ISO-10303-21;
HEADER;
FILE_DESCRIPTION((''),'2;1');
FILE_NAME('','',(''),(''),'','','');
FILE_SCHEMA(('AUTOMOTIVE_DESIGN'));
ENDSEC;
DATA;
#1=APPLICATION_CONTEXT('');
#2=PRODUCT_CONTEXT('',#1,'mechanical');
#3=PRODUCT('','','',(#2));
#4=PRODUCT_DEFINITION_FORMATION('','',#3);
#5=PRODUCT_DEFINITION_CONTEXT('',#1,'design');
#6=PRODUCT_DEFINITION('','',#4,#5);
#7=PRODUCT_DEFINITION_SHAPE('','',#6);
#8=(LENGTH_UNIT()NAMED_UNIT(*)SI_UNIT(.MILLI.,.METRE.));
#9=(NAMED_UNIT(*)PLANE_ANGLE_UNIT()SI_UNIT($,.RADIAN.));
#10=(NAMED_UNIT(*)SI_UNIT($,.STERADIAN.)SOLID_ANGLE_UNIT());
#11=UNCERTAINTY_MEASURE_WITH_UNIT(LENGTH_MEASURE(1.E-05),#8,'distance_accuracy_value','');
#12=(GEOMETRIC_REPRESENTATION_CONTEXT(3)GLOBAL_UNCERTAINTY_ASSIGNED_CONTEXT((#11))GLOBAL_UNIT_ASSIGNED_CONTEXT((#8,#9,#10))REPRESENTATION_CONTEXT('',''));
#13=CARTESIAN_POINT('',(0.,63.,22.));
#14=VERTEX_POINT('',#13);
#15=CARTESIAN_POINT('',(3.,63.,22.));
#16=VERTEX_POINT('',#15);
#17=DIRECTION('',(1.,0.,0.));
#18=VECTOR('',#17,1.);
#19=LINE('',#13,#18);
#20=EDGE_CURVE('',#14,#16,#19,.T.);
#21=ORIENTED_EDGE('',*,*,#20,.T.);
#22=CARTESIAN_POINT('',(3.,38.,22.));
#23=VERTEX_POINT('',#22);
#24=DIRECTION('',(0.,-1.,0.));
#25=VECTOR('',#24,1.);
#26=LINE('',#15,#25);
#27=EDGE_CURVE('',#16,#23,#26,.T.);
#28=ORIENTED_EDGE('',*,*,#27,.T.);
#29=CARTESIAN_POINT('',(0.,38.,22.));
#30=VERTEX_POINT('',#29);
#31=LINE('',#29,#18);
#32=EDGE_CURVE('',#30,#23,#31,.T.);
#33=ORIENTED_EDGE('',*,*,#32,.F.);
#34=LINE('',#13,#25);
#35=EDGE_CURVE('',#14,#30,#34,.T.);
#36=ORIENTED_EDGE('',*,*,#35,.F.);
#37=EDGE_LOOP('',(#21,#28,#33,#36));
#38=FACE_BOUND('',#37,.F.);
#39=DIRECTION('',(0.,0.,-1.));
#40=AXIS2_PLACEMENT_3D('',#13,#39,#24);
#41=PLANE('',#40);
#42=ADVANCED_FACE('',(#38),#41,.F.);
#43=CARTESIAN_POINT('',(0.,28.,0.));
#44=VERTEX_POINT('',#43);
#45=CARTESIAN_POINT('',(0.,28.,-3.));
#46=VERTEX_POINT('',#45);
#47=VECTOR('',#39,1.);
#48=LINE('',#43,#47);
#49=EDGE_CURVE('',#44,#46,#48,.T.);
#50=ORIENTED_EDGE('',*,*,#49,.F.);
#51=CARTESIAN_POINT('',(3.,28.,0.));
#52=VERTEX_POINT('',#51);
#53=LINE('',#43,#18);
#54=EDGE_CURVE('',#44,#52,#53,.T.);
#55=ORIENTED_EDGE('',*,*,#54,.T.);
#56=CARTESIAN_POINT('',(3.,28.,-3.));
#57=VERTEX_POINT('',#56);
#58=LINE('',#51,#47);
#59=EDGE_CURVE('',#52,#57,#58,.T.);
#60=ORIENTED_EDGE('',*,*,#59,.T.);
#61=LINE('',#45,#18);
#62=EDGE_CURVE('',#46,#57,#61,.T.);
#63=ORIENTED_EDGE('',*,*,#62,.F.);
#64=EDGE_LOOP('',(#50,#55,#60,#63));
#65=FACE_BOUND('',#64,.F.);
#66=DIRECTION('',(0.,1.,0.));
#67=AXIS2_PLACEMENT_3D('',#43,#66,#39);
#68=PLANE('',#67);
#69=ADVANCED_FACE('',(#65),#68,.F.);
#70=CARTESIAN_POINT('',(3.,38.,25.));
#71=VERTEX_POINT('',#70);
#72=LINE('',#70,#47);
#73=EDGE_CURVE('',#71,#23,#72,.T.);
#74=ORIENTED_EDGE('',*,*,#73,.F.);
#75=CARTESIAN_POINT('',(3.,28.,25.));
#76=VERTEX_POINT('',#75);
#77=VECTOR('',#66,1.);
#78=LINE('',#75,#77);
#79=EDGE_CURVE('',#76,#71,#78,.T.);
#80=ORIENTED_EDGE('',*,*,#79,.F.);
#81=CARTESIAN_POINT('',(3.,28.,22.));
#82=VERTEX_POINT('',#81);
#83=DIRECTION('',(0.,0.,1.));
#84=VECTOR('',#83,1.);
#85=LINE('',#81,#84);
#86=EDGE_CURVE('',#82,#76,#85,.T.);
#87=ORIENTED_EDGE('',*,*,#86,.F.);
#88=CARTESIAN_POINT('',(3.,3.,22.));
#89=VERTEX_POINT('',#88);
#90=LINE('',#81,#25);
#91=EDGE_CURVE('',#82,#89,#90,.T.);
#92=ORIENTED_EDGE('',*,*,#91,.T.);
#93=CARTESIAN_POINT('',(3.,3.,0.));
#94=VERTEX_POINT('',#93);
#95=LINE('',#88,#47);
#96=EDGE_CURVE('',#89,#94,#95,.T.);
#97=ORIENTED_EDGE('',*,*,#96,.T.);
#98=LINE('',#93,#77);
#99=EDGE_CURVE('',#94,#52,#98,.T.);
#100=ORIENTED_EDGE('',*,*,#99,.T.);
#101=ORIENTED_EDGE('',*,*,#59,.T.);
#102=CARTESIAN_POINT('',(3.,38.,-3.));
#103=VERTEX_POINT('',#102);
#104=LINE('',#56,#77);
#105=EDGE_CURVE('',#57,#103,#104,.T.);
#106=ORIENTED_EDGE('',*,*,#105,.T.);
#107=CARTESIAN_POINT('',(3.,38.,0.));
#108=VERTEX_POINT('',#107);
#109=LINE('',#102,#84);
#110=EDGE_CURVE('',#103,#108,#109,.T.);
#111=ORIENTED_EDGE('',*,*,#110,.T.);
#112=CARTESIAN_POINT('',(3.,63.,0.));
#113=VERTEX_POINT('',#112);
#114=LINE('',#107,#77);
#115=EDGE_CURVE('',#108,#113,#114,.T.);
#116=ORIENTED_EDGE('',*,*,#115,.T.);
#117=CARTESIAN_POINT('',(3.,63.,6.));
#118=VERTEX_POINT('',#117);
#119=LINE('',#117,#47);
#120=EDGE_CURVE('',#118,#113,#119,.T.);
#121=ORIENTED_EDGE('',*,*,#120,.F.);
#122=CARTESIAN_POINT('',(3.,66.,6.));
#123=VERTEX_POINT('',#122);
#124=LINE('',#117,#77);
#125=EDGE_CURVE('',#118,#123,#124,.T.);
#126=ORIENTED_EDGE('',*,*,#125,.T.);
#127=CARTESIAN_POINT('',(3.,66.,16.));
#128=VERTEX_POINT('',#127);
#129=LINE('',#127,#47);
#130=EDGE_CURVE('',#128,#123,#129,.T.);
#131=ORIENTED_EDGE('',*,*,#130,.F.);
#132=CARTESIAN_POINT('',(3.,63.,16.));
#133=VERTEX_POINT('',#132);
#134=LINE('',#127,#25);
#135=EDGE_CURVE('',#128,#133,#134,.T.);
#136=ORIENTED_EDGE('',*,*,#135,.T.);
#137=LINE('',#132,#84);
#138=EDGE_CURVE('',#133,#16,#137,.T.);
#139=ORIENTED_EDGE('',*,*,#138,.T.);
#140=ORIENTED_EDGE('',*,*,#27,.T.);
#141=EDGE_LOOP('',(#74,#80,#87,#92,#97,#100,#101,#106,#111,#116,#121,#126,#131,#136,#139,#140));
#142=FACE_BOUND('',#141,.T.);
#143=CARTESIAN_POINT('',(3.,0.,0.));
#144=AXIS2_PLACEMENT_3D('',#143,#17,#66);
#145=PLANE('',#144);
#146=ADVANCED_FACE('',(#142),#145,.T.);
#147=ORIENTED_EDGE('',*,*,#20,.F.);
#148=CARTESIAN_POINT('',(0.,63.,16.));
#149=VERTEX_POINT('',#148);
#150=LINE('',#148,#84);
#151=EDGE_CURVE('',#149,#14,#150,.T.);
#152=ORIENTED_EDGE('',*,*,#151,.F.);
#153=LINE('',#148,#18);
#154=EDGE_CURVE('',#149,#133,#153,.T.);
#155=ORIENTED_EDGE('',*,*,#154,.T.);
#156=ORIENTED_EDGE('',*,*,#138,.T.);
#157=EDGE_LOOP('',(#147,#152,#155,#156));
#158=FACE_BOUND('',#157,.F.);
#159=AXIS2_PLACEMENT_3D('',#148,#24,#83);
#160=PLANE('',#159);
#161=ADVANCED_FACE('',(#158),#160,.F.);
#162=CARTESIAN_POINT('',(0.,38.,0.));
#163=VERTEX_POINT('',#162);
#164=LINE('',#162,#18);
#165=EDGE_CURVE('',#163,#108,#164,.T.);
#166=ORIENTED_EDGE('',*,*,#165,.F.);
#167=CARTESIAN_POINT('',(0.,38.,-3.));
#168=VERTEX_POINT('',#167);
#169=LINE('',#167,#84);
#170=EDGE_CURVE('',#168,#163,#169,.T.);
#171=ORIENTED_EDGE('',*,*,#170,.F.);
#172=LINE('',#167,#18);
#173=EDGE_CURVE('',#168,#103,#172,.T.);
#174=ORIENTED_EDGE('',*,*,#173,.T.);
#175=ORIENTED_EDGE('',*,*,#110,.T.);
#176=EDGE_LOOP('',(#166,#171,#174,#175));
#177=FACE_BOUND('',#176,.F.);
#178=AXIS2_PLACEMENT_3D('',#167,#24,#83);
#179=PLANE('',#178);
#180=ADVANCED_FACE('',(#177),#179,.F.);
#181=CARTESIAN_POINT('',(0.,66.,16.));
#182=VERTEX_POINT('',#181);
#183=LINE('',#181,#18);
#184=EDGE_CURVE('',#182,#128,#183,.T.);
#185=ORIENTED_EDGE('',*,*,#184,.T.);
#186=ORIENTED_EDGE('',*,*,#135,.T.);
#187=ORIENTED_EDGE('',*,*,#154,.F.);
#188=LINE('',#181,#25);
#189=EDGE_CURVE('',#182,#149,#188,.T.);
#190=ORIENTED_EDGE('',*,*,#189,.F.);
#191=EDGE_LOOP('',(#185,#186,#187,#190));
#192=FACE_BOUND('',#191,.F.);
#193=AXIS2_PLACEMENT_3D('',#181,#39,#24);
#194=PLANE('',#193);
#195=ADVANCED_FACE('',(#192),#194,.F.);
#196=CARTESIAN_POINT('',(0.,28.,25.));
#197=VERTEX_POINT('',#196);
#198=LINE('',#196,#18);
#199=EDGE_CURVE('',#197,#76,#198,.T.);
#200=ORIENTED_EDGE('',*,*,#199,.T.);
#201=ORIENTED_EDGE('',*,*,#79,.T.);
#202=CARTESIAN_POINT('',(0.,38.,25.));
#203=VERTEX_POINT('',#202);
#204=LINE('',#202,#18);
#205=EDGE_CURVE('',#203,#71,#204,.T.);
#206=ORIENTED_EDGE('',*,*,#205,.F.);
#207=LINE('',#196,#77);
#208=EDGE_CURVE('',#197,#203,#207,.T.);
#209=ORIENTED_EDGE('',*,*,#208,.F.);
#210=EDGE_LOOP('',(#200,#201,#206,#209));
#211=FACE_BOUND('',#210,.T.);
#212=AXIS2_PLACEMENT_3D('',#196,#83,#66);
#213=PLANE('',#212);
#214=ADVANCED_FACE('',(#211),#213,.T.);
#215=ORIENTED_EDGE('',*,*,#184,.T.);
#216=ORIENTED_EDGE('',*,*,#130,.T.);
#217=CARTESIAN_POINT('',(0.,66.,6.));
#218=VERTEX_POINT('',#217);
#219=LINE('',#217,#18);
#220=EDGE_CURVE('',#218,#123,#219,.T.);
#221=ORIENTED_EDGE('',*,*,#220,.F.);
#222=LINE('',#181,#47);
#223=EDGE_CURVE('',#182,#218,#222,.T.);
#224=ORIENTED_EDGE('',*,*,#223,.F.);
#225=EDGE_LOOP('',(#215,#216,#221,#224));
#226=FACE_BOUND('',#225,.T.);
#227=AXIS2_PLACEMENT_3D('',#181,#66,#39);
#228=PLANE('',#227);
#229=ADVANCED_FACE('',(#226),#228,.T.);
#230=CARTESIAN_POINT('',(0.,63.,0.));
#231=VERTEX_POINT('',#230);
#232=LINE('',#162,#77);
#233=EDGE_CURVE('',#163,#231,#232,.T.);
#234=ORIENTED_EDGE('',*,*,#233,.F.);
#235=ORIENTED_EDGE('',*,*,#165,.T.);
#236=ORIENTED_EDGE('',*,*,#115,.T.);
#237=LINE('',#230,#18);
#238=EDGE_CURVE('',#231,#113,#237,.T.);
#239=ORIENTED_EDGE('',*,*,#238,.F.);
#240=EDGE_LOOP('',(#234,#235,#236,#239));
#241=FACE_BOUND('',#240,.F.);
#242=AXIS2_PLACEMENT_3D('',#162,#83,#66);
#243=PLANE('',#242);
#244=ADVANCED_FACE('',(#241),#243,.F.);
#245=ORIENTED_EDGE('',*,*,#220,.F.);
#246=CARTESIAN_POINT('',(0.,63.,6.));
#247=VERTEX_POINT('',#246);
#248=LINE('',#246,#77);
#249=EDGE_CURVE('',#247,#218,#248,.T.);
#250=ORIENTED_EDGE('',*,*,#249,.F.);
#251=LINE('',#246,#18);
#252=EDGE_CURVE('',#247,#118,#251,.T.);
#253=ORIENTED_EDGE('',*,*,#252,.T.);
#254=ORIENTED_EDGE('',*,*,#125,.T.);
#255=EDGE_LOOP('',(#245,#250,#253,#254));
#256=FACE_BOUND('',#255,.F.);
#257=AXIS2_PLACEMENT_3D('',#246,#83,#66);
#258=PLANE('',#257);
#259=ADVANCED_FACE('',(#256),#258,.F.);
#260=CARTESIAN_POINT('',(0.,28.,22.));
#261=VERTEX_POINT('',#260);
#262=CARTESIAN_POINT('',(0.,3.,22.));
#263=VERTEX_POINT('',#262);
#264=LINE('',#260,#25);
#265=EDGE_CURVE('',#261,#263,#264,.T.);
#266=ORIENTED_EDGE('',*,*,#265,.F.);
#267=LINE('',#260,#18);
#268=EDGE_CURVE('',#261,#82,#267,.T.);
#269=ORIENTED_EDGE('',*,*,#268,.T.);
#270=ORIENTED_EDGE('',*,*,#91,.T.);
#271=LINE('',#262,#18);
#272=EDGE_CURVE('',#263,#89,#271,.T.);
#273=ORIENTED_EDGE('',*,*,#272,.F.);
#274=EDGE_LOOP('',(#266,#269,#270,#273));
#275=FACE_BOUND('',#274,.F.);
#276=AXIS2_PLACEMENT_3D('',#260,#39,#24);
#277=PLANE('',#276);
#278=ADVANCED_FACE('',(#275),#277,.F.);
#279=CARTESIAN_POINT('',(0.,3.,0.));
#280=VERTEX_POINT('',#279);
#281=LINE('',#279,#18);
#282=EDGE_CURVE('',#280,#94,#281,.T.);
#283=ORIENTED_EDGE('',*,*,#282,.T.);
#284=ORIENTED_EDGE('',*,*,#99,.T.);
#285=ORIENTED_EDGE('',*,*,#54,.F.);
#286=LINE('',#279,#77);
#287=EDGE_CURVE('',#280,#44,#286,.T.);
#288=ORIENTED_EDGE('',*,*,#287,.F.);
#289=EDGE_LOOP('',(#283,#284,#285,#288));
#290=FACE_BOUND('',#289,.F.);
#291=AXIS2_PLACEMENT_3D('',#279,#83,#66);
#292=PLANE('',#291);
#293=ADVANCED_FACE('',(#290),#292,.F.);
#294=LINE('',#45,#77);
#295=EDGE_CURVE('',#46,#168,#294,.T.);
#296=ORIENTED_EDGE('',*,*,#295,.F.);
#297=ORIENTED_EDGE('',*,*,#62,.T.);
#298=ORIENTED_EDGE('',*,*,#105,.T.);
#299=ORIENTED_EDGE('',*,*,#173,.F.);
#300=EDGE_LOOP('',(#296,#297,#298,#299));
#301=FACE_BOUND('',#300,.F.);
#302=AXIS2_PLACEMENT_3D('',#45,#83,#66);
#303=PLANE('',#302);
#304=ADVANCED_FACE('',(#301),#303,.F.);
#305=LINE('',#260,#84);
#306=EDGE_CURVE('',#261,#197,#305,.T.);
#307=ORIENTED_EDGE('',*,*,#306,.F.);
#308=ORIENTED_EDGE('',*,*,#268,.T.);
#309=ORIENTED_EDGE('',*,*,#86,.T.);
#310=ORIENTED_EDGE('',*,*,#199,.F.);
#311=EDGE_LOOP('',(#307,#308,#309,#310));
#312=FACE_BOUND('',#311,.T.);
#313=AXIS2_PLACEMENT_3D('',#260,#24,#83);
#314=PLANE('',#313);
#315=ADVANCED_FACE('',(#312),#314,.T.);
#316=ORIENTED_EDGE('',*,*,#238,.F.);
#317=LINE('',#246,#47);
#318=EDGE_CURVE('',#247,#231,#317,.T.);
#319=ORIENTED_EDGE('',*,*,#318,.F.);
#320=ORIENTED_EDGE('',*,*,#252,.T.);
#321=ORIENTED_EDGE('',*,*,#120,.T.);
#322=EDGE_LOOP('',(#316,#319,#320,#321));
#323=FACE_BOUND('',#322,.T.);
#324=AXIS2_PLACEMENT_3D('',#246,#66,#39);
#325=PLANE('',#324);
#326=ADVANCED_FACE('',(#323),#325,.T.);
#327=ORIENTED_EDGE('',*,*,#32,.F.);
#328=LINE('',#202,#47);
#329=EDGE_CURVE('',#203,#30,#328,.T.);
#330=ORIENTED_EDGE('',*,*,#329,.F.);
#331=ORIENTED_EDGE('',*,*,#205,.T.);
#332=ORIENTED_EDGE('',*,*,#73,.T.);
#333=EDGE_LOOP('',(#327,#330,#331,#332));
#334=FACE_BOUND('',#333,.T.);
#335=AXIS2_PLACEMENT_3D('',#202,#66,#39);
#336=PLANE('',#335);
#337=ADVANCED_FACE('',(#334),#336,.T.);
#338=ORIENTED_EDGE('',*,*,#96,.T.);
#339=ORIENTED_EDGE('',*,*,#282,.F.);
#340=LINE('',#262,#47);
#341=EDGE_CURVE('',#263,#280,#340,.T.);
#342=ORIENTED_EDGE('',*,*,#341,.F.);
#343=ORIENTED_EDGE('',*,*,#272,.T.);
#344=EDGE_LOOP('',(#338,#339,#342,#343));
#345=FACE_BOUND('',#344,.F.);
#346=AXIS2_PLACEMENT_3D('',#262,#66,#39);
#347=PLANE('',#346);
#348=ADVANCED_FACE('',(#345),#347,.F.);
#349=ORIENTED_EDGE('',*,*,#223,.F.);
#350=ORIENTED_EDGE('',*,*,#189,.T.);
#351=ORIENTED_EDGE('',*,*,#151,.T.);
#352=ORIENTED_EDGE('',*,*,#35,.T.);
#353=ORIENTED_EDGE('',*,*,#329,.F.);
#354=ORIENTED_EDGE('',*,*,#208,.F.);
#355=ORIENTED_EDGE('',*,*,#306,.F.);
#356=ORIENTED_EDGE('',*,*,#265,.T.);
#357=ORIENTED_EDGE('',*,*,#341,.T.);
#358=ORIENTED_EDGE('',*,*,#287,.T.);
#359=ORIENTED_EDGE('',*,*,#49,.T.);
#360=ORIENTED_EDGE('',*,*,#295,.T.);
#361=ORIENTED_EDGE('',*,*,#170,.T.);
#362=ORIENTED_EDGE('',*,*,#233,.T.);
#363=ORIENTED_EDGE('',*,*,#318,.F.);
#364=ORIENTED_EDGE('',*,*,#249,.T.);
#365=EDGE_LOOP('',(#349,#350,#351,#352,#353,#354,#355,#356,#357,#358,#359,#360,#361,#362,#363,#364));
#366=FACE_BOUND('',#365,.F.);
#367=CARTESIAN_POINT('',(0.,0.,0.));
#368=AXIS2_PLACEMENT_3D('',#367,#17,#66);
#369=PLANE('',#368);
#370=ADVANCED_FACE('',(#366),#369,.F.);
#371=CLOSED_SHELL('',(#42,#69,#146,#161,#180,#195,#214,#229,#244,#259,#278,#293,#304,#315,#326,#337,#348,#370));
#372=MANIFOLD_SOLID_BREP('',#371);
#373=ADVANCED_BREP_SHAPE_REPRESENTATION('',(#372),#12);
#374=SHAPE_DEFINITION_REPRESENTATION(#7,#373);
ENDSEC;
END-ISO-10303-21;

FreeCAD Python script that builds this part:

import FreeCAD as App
import Part
import Sketcher
from FreeCAD import Vector


def add_polygon(sketch, points):
    """Adds a closed chain of lines whose ends are joined by coincident constraints."""
    first, n = sketch.GeometryCount, len(points)
    for a, b in zip(points, points[1:] + points[:1]):
        sketch.addGeometry(Part.LineSegment(App.Vector(*a, 0), App.Vector(*b, 0)), False)
    for i in range(n):
        sketch.addConstraint(Sketcher.Constraint("Coincident", first + i, 2, first + (i + 1) % n, 1))

doc = App.newDocument("Part")
body = doc.addObject("PartDesign::Body", "Body")

# Sketch on YZ plane
sketch1 = body.newObject("Sketcher::SketchObject", "Sketch")
sketch1.AttachmentSupport = (doc.getObject("YZ_Plane"), [""])
sketch1.MapMode = "FlatFace"
add_polygon(sketch1, [(28, 25), (28, 22), (3, 22), (3, 0), (28, 0), (28, -3), (38, -3), (38, 0), (63, 0), (63, 6), (66, 6), (66, 16), (63, 16), (63, 22), (38, 22), (38, 25)])  # lines 0-15
sketch1.addConstraint([
    Sketcher.Constraint("Vertical", 0),
    Sketcher.Constraint("Horizontal", 1),
    Sketcher.Constraint("Vertical", 2),
    Sketcher.Constraint("Horizontal", 3),
    Sketcher.Constraint("Vertical", 4),
    Sketcher.Constraint("Horizontal", 5),
    Sketcher.Constraint("Vertical", 6),
    Sketcher.Constraint("Horizontal", 7),
    Sketcher.Constraint("Vertical", 8),
    Sketcher.Constraint("Horizontal", 9),
    Sketcher.Constraint("Vertical", 10),
    Sketcher.Constraint("Horizontal", 11),
    Sketcher.Constraint("Vertical", 12),
    Sketcher.Constraint("Horizontal", 13),
    Sketcher.Constraint("Vertical", 14),
    Sketcher.Constraint("Horizontal", 15),
    Sketcher.Constraint("PointOnObject", 2, 2, -1),
    Sketcher.Constraint("PointOnObject", 6, 2, -1),
    Sketcher.Constraint("Horizontal", 1, 2, 12, 2),
    Sketcher.Constraint("Vertical", 0, 2, 3, 2),
    Sketcher.Constraint("Vertical", 8, 2, 11, 2),
    Sketcher.Constraint("Vertical", 6, 2, 13, 2),
    Sketcher.Constraint("Equal", 3, 7),
    Sketcher.Constraint("Equal", 11, 0),
    Sketcher.Constraint("Equal", 0, 4),
    Sketcher.Constraint("Equal", 15, 10),
    Sketcher.Constraint("Equal", 8, 12),
    Sketcher.Constraint("DistanceX", 1, 2, 1, 1, 25.0),
    Sketcher.Constraint("DistanceX", 5, 1, 5, 2, 10.0),
    Sketcher.Constraint("DistanceX", 9, 1, 9, 2, 3.0),
    Sketcher.Constraint("DistanceY", 2, 2, 2, 1, 22.0),
    Sketcher.Constraint("DistanceX", -1, 1, 1, 2, 3.0),
])
pad1 = body.newObject("PartDesign::Pad", "Pad")
pad1.Profile = sketch1
pad1.Length = 3

doc.recompute()
